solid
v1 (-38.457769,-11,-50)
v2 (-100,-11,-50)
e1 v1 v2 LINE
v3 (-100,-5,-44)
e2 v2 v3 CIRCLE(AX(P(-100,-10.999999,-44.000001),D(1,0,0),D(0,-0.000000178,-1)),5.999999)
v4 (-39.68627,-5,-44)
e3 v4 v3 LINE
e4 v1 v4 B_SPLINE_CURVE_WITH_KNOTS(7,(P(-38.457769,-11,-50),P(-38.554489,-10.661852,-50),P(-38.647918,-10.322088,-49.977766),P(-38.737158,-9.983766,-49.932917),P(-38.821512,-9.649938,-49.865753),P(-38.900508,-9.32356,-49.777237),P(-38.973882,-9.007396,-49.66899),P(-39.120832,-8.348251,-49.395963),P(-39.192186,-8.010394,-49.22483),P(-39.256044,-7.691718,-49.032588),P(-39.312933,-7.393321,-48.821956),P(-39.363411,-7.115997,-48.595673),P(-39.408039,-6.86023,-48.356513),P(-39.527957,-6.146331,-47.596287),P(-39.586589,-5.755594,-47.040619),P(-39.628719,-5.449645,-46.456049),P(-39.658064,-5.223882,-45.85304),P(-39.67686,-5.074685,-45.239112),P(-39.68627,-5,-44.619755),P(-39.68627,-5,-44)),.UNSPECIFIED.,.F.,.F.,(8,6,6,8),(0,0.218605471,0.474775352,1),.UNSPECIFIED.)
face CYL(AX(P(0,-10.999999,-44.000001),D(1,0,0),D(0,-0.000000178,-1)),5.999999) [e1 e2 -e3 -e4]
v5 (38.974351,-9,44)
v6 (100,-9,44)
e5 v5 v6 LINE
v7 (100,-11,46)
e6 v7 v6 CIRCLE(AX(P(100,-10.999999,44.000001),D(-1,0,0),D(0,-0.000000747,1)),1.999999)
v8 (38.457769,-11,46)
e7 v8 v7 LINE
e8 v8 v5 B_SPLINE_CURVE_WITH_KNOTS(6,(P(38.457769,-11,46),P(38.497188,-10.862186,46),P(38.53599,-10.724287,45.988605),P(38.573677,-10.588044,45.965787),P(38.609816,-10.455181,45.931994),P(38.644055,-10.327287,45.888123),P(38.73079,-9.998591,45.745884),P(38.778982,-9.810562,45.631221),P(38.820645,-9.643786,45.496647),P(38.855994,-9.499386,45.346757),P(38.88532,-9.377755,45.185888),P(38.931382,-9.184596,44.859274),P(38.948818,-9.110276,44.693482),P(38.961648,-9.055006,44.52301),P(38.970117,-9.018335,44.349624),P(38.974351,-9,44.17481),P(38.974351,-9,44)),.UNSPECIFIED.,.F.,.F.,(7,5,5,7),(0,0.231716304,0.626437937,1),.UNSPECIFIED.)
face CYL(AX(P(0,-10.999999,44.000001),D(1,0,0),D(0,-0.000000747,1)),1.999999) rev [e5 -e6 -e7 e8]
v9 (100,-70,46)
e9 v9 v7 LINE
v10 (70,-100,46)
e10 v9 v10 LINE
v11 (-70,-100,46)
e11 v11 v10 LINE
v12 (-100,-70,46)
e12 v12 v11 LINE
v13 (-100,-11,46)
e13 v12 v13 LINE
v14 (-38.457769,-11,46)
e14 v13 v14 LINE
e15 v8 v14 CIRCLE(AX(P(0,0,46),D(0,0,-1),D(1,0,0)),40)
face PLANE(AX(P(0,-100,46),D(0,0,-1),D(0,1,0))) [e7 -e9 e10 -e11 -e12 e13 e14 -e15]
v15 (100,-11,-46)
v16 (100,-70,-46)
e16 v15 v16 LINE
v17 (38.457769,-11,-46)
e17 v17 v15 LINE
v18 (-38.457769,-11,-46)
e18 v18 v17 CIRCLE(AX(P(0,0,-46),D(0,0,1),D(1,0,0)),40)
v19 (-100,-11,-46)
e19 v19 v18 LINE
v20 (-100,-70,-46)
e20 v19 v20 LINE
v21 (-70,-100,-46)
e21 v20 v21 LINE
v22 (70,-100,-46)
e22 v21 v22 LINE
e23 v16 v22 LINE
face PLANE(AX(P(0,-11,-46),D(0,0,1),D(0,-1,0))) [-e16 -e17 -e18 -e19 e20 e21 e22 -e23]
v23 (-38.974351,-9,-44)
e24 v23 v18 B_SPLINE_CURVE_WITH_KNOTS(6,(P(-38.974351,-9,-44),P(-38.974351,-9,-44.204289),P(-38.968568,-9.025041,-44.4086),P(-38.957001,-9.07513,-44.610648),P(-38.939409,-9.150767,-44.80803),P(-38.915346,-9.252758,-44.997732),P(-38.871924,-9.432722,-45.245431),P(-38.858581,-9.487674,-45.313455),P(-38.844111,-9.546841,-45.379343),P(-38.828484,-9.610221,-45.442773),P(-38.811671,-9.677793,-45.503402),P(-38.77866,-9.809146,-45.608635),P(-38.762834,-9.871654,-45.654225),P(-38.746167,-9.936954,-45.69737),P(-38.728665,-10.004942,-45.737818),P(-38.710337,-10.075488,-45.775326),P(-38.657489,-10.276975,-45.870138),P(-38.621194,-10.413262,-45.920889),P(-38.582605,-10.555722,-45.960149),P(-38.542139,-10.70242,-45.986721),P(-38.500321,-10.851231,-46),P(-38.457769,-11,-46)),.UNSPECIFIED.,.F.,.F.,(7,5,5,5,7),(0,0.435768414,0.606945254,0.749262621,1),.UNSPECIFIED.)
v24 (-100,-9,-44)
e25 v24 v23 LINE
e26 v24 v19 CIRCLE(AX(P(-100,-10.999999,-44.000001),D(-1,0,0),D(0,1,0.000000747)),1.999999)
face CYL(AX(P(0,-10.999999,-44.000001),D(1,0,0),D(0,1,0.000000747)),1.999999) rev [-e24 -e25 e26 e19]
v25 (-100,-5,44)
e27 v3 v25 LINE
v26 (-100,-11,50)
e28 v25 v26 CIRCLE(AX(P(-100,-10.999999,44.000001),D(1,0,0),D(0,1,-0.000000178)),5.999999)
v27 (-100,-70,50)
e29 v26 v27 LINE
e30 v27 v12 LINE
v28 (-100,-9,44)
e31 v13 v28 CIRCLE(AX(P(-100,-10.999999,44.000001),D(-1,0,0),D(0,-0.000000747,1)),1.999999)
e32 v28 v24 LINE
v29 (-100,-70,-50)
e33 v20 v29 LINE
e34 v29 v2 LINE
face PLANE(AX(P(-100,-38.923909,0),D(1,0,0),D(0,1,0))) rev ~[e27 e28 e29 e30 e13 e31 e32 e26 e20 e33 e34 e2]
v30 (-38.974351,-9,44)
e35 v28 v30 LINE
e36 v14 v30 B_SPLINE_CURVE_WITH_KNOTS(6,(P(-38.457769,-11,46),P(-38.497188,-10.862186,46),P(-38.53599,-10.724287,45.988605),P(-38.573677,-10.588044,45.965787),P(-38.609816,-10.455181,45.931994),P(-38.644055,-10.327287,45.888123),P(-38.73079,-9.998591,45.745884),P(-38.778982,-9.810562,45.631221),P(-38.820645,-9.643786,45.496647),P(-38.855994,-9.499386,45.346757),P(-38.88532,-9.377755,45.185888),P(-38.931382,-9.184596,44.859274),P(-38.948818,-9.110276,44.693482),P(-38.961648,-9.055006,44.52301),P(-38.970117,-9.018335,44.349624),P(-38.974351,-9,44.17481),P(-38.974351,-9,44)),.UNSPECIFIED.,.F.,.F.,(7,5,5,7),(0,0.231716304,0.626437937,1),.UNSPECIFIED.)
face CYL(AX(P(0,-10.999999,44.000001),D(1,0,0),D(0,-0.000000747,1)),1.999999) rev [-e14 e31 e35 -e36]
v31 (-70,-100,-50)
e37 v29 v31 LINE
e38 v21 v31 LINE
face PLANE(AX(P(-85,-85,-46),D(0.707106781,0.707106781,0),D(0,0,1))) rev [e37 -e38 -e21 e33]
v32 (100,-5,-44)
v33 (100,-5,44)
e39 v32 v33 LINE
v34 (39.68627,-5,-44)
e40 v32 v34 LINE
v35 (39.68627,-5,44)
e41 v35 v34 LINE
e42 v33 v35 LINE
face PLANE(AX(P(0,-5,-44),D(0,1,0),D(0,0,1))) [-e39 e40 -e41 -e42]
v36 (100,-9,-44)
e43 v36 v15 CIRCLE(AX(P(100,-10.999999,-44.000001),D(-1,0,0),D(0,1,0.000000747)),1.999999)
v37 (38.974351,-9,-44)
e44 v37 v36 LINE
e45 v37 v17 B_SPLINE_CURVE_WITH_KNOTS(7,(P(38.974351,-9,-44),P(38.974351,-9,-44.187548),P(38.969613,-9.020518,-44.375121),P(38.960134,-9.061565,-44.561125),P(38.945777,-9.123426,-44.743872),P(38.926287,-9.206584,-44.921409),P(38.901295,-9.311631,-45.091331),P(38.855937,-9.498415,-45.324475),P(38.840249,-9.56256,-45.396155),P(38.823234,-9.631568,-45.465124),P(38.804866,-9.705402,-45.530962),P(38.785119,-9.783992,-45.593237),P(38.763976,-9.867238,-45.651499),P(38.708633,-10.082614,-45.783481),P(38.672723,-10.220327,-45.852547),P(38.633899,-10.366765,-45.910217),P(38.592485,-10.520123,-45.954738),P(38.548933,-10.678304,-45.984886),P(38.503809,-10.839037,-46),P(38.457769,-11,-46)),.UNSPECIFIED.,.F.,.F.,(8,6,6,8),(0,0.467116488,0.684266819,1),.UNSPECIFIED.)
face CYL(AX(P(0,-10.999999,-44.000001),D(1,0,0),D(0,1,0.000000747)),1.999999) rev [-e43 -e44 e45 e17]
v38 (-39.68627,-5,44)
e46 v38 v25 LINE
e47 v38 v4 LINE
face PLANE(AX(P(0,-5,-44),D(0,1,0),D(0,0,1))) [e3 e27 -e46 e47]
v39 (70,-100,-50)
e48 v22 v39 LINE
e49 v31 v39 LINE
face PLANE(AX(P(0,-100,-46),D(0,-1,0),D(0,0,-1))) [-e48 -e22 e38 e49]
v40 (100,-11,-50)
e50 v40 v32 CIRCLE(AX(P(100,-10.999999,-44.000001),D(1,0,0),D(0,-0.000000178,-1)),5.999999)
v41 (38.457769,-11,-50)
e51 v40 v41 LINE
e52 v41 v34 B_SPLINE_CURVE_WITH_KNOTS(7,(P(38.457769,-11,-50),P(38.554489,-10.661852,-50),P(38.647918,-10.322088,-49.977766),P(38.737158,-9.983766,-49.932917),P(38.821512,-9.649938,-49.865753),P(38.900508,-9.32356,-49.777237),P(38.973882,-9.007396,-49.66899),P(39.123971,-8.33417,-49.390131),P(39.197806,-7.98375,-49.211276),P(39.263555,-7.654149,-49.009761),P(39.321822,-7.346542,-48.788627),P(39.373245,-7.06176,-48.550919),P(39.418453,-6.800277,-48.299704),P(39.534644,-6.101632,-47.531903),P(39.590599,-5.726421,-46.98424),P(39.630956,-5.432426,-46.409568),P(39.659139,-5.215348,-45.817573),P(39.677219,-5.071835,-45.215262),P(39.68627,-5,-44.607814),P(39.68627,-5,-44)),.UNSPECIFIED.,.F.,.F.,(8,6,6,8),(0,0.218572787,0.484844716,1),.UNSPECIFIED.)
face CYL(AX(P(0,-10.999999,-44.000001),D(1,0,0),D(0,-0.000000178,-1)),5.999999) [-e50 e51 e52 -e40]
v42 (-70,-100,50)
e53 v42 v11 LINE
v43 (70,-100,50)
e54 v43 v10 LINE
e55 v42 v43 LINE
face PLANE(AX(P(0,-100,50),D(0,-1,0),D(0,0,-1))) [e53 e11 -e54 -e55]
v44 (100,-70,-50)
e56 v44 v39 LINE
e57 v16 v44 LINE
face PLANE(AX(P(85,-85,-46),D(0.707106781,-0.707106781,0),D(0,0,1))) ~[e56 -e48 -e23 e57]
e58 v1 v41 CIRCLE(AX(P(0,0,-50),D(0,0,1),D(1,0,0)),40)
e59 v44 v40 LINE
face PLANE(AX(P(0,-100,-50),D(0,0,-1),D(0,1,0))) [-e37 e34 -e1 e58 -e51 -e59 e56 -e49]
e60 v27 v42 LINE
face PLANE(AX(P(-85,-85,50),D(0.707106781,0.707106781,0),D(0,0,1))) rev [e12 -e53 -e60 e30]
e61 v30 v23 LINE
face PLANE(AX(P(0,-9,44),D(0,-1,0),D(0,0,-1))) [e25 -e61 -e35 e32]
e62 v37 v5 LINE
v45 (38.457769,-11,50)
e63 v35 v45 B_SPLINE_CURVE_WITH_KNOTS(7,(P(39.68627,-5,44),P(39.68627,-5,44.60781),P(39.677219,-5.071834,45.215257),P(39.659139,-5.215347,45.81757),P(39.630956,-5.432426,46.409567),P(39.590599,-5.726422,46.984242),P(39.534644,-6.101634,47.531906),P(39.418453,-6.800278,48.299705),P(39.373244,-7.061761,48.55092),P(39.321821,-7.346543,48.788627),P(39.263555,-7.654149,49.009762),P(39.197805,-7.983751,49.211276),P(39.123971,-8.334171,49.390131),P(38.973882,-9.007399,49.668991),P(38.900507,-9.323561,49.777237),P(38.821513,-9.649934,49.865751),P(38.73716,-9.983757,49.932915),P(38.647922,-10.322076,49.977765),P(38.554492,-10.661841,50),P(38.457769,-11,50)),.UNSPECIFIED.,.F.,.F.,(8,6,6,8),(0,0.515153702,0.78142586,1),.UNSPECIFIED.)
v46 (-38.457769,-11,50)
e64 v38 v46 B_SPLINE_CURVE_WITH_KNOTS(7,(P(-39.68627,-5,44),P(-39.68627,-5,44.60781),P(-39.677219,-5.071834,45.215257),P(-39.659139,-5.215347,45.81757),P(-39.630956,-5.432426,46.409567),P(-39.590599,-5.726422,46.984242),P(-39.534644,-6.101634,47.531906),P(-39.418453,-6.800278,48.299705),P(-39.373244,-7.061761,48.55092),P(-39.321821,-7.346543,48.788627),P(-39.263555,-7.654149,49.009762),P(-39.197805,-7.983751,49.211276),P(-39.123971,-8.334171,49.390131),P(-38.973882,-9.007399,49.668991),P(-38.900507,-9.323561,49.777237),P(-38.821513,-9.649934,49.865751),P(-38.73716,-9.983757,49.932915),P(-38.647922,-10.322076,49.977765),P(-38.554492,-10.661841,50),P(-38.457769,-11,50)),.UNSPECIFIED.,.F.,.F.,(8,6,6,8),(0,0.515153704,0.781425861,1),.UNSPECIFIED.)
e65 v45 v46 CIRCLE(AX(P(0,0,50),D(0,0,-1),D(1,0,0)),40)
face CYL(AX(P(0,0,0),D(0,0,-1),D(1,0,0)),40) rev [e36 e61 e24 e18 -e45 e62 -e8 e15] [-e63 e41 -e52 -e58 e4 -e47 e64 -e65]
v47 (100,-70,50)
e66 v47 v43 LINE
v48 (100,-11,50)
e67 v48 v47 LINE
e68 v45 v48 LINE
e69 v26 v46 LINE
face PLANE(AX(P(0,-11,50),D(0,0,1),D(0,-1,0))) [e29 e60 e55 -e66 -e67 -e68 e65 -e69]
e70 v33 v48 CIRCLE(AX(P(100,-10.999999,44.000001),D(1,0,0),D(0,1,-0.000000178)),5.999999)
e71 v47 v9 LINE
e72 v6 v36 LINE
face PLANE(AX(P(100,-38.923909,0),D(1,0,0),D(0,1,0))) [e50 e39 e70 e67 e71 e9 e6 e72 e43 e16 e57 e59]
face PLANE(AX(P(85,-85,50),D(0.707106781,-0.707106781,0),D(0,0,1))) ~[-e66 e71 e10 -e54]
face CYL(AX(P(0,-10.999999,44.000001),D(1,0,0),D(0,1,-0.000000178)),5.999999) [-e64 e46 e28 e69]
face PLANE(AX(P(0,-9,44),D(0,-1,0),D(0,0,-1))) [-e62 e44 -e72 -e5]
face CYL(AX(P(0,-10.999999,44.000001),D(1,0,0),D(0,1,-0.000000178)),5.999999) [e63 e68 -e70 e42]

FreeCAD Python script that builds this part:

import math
import FreeCAD as App
import Part
import Sketcher
from FreeCAD import Vector


def edges_at(feature, points):
    """Names of the edges that pass closest to the given points."""
    edges = feature.Shape.Edges
    near = lambda p: min(range(len(edges)), key=lambda i: edges[i].distToShape(Part.Vertex(*p))[0])
    return sorted({f"Edge{near(p) + 1}" for p in points})

doc = App.newDocument("Part")
body = doc.addObject("PartDesign::Body", "Body")

# Sketch on YZ plane
sketch1 = doc.addObject("Sketcher::SketchObject", "Sketch")
body.addObject(sketch1)
sketch1.AttachmentSupport = (doc.YZ_Plane, [""])
sketch1.MapMode = "FlatFace"
sketch1.addGeometry([
    Part.ArcOfCircle(Part.Circle(Vector(-11, 44, 0), Vector(0, 0, 1), 6), math.radians(0), math.radians(90)),  # 0
    Part.LineSegment(Vector(-11, 50, 0), Vector(-100, 50, 0)),  # 1
    Part.LineSegment(Vector(-100, 50, 0), Vector(-100, 46, 0)),  # 2
    Part.LineSegment(Vector(-100, 46, 0), Vector(-11, 46, 0)),  # 3
    Part.ArcOfCircle(Part.Circle(Vector(-11, 44, 0), Vector(0, 0, 1), 2), math.radians(0), math.radians(90)),  # 4
    Part.LineSegment(Vector(-9, 44, 0), Vector(-9, -44, 0)),  # 5
    Part.ArcOfCircle(Part.Circle(Vector(-11, -44, 0), Vector(0, 0, 1), 2), math.radians(-90), math.radians(0)),  # 6
    Part.LineSegment(Vector(-11, -46, 0), Vector(-100, -46, 0)),  # 7
    Part.LineSegment(Vector(-100, -46, 0), Vector(-100, -50, 0)),  # 8
    Part.LineSegment(Vector(-100, -50, 0), Vector(-11, -50, 0)),  # 9
    Part.ArcOfCircle(Part.Circle(Vector(-11, -44, 0), Vector(0, 0, 1), 6), math.radians(-90), math.radians(0)),  # 10
    Part.LineSegment(Vector(-5, -44, 0), Vector(-5, 44, 0)),  # 11
], False)
sketch1.addConstraint([
    Sketcher.Constraint("Tangent", 0, 2, 1, 1),
    Sketcher.Constraint("Coincident", 1, 2, 2, 1),
    Sketcher.Constraint("Coincident", 2, 2, 3, 1),
    Sketcher.Constraint("Tangent", 3, 2, 4, 2),
    Sketcher.Constraint("Tangent", 4, 1, 5, 1),
    Sketcher.Constraint("Tangent", 5, 2, 6, 2),
    Sketcher.Constraint("Tangent", 6, 1, 7, 1),
    Sketcher.Constraint("Coincident", 7, 2, 8, 1),
    Sketcher.Constraint("Coincident", 8, 2, 9, 1),
    Sketcher.Constraint("Tangent", 9, 2, 10, 1),
    Sketcher.Constraint("Tangent", 10, 2, 11, 1),
    Sketcher.Constraint("Tangent", 11, 2, 0, 1),
    Sketcher.Constraint("Horizontal", 1),
    Sketcher.Constraint("Vertical", 2),
    Sketcher.Constraint("Horizontal", 3),
    Sketcher.Constraint("Vertical", 5),
    Sketcher.Constraint("Horizontal", 7),
    Sketcher.Constraint("Vertical", 8),
    Sketcher.Constraint("Horizontal", 9),
    Sketcher.Constraint("Vertical", 11),
    Sketcher.Constraint("Coincident", 4, 3, 0, 3),
    Sketcher.Constraint("Coincident", 10, 3, 6, 3),
    Sketcher.Constraint("Equal", 4, 6),
    Sketcher.Constraint("Symmetric", 2, 2, 7, 2, -1),
    Sketcher.Constraint("Radius", 0, 5.999999),
    Sketcher.Constraint("Radius", 4, 1.999999),
    Sketcher.Constraint("DistanceX", 1, 2, 1, 1, 89.0),
    Sketcher.Constraint("DistanceY", 5, 2, 5, 1, 88.0),
    Sketcher.Constraint("DistanceX", 0, 3, -1, 1, 10.999999),
])
pad1 = doc.addObject("PartDesign::Pad", "Pad")
body.addObject(pad1)
pad1.Profile = sketch1
pad1.Type = "TwoLengths"
pad1.Length = 100
pad1.Length2 = 100

# Sketch on XY plane
sketch2 = doc.addObject("Sketcher::SketchObject", "Sketch001")
body.addObject(sketch2)
sketch2.AttachmentSupport = (doc.XY_Plane, [""])
sketch2.MapMode = "FlatFace"
sketch2.addGeometry(Part.Circle(Vector(0, 0, 0), Vector(0, 0, 1), 40), False)
sketch2.addConstraint([
    Sketcher.Constraint("Coincident", 0, 3, -1, 1),
    Sketcher.Constraint("Diameter", 0, 80.0),
])
pocket1 = doc.addObject("PartDesign::Pocket", "Pocket")
body.addObject(pocket1)
pocket1.Profile = sketch2
pocket1.Type = "ThroughAll"
pocket1.Midplane = True
doc.recompute()

chamfer = doc.addObject("PartDesign::Chamfer", "Chamfer")
body.addObject(chamfer)
chamfer.Base = (pocket1, edges_at(pocket1, [
    (100, -100, -48),
    (100, -100, 48),
    (-100, -100, -48),
    (-100, -100, 48),
]))
chamfer.Size = 30

doc.recompute()
